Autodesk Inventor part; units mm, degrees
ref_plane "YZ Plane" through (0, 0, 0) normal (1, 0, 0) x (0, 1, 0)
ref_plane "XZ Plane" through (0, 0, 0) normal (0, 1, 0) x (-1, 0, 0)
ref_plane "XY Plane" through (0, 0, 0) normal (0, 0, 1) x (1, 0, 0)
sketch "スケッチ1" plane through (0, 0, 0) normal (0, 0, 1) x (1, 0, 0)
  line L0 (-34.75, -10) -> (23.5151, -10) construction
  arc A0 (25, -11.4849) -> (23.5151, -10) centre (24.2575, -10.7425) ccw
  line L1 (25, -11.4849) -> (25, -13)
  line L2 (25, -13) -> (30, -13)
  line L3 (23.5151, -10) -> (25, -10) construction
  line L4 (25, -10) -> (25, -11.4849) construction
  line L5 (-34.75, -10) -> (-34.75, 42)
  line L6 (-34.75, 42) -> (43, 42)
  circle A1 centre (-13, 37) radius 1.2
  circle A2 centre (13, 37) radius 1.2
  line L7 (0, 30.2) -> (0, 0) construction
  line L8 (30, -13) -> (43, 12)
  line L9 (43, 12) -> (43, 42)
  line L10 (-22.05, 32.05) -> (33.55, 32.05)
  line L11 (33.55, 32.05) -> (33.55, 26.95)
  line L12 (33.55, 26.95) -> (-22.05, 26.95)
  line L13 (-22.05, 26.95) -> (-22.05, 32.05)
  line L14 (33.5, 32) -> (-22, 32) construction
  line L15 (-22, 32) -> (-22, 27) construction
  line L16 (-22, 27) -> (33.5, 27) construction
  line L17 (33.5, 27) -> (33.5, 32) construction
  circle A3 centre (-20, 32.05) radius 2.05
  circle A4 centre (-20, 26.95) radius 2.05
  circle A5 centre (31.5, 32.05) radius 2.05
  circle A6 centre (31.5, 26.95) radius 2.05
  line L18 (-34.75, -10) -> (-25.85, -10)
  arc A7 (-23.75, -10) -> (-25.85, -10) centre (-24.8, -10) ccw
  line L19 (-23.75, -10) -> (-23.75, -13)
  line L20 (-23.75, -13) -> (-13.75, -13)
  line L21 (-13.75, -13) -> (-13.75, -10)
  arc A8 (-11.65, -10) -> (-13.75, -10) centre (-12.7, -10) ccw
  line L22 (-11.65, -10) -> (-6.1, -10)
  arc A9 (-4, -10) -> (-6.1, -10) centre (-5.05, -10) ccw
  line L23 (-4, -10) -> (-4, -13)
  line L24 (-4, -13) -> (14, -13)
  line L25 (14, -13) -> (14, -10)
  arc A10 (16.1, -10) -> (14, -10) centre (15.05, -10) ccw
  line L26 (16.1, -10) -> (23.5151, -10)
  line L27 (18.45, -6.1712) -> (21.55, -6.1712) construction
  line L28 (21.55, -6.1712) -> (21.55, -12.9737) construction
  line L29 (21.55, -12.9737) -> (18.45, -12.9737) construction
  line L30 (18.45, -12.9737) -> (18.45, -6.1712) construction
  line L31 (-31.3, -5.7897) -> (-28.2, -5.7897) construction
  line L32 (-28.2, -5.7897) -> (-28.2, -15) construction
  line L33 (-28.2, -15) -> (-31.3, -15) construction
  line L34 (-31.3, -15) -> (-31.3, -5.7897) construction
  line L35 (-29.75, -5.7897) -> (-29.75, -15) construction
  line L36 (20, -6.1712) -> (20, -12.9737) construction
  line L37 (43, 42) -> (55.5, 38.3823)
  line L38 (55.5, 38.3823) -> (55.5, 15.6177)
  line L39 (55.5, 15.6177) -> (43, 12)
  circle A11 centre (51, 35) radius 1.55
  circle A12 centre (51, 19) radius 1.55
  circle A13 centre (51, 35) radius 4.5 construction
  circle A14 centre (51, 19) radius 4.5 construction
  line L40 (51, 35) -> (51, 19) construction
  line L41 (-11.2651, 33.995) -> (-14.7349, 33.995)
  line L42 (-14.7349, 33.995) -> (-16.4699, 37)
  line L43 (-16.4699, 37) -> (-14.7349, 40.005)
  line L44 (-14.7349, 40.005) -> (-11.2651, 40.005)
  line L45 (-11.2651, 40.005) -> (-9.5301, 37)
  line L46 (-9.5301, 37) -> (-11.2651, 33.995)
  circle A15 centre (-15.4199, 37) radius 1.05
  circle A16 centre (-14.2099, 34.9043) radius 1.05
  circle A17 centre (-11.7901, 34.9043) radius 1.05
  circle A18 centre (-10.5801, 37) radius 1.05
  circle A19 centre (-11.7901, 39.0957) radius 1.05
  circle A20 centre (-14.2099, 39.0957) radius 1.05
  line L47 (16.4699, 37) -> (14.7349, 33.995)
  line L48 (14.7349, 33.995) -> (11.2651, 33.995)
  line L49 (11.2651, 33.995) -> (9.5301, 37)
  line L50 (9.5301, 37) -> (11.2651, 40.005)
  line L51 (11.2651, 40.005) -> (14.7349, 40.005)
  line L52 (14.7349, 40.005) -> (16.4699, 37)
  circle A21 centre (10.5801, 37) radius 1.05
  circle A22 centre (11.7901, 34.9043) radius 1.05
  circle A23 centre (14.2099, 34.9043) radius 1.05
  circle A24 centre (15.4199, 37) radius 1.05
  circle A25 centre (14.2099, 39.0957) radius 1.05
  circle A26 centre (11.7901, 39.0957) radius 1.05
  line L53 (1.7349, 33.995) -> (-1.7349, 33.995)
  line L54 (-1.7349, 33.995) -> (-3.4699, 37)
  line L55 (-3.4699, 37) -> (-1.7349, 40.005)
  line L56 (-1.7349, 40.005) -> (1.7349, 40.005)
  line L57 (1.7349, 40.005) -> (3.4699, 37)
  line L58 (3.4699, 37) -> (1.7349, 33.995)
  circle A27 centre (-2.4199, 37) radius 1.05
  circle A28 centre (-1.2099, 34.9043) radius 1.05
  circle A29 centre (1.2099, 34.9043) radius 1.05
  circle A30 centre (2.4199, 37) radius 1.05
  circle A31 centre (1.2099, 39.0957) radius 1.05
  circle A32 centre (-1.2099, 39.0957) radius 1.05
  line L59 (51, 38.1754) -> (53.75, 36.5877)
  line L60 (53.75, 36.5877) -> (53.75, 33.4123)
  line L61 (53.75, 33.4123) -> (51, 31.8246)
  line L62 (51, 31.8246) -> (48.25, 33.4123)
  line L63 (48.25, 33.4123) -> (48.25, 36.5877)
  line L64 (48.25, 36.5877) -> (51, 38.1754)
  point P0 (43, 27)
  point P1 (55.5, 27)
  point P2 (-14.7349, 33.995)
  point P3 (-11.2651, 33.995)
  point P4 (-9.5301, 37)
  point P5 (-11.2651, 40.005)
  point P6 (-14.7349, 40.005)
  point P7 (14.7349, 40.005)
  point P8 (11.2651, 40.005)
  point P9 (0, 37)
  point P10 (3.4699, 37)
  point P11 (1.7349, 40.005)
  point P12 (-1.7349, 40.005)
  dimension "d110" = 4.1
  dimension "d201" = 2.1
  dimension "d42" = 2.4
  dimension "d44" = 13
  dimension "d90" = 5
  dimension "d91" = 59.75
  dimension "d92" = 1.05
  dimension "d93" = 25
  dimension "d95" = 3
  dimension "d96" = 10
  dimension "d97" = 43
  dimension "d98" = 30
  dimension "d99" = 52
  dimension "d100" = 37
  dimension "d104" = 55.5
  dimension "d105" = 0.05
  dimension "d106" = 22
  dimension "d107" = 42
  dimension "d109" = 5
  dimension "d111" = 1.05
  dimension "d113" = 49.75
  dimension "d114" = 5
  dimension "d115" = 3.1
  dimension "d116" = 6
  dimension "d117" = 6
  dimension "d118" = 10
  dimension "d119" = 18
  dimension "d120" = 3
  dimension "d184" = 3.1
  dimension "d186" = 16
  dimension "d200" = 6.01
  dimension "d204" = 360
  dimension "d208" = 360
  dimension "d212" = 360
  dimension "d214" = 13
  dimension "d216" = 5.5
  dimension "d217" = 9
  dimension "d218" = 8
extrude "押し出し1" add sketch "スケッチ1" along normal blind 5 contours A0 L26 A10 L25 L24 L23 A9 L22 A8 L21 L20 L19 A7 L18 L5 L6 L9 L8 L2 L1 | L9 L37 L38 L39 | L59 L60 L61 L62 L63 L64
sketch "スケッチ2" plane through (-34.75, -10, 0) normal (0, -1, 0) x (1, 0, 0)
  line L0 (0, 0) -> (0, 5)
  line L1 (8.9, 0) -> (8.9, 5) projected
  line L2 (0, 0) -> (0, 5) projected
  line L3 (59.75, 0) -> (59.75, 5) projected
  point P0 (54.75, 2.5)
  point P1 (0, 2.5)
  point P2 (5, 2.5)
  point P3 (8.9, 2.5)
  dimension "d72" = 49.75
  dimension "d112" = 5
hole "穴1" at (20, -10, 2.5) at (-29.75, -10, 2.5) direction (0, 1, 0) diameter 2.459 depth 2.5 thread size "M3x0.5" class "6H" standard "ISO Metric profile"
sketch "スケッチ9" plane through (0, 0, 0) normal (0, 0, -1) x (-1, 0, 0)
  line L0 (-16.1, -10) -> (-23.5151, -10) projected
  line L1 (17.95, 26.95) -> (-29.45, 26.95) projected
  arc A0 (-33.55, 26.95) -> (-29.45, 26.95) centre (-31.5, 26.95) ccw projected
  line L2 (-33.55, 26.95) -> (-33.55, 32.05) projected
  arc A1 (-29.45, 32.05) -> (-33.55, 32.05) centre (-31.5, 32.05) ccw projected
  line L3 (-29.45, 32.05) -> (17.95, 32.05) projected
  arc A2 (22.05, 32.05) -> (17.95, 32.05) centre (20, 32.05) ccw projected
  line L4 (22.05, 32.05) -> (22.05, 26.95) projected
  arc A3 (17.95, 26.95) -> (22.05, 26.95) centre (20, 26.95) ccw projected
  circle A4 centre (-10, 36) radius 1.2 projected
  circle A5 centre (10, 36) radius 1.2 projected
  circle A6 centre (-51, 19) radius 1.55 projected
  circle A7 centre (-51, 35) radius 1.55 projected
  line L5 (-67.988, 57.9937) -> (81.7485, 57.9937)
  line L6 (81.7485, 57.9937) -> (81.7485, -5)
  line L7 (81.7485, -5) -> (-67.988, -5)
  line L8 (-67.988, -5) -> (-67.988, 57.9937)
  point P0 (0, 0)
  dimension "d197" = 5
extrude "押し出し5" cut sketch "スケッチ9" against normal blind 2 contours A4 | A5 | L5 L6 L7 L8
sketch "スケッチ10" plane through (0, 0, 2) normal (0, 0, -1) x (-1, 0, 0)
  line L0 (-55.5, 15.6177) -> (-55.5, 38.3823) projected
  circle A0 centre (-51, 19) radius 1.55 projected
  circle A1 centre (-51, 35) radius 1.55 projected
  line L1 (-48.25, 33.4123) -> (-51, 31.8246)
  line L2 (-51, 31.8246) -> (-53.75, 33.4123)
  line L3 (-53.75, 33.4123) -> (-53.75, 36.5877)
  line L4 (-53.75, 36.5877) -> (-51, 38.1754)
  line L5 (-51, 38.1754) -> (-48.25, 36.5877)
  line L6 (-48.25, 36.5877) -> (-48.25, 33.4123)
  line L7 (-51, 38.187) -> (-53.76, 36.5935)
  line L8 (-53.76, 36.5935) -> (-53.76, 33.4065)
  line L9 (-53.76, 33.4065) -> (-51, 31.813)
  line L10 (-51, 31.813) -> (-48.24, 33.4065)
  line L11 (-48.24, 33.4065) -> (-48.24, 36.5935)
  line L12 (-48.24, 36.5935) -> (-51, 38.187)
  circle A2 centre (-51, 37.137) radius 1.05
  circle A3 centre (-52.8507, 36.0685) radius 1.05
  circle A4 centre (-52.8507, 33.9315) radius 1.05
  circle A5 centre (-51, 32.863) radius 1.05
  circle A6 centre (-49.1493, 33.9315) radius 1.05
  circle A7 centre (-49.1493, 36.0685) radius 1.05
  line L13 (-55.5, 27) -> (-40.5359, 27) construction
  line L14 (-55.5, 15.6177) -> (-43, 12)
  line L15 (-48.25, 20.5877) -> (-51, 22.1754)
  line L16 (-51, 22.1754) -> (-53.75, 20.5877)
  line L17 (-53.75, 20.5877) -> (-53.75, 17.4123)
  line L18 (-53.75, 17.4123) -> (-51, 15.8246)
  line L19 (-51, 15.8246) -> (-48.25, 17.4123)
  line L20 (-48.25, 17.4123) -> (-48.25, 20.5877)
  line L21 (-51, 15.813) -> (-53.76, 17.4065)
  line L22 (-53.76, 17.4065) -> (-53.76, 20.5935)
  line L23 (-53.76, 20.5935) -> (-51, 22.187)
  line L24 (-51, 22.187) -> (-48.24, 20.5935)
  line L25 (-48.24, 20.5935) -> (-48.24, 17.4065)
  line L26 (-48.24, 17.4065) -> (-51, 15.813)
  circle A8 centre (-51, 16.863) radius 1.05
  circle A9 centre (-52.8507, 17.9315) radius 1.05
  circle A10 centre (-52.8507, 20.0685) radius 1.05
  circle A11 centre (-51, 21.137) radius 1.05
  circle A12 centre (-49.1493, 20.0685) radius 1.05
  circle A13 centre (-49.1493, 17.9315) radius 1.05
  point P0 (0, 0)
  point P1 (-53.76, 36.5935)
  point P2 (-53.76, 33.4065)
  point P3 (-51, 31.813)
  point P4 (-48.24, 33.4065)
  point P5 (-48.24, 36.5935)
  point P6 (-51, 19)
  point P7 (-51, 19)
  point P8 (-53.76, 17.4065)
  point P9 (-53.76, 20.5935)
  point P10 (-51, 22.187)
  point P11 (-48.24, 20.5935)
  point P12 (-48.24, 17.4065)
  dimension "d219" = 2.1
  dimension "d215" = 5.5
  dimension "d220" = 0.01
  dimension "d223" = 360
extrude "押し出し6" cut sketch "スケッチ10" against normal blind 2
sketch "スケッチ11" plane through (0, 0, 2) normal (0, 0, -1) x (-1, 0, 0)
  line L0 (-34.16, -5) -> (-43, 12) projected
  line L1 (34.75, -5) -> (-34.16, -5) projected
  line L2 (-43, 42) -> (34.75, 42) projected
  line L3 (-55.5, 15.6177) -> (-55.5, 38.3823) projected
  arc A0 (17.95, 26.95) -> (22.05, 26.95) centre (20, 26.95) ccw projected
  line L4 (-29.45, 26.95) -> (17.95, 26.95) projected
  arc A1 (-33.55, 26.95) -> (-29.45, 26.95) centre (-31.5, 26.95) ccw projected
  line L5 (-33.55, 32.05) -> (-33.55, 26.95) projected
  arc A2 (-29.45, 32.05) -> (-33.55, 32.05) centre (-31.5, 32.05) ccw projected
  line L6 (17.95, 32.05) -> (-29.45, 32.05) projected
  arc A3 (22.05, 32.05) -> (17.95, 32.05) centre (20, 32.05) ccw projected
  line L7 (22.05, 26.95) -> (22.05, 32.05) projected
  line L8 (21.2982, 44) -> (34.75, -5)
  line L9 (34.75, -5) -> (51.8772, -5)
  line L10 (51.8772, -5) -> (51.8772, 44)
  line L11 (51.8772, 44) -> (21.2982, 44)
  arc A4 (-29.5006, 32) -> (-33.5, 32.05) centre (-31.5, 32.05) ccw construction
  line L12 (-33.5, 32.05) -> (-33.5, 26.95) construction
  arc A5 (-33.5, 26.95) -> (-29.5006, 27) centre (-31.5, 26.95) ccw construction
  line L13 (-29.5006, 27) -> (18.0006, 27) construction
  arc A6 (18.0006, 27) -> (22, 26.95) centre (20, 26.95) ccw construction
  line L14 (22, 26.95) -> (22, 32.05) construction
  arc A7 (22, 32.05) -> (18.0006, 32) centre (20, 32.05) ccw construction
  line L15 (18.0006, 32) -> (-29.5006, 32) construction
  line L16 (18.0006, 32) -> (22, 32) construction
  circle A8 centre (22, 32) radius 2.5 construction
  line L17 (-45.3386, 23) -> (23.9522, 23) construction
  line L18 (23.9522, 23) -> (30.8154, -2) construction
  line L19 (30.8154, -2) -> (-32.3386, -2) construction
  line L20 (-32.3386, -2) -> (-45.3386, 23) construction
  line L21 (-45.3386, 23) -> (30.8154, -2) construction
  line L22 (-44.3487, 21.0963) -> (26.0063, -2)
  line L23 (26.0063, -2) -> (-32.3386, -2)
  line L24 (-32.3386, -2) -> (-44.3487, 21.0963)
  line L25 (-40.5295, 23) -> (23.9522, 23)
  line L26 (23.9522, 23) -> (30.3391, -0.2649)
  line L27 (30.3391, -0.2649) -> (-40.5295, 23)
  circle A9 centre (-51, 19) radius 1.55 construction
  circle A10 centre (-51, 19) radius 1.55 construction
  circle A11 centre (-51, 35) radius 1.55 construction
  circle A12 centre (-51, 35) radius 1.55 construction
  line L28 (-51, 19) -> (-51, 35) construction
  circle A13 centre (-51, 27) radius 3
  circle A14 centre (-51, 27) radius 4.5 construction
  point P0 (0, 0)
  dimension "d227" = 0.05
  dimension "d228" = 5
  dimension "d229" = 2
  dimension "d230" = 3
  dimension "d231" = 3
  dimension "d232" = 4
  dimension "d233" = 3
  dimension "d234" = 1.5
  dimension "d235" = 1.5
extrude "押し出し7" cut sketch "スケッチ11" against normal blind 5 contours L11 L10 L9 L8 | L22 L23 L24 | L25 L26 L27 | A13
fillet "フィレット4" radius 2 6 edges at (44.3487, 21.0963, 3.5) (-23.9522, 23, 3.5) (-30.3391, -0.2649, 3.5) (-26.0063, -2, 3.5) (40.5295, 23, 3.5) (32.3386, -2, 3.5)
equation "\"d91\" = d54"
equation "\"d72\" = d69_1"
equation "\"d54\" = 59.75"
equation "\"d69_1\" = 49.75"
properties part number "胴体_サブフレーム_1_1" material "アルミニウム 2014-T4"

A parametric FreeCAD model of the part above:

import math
import FreeCAD as App
import Part
import Sketcher
Q = App.Units.Quantity


def edges_at(feature, points):
    """Names of the edges that pass closest to the given points."""
    edges = feature.Shape.Edges
    near = lambda p: min(range(len(edges)), key=lambda i: edges[i].distToShape(Part.Vertex(*p))[0])
    return sorted({f"Edge{near(p) + 1}" for p in points})

doc = App.newDocument("Part")
body = doc.addObject("PartDesign::Body", "Body")

# Sketch on XY plane
sketch1 = doc.addObject("Sketcher::SketchObject", "Sketch")
body.addObject(sketch1)
sketch1.AttachmentSupport = (doc.XY_Plane, [""])
sketch1.MapMode = "FlatFace"
sketch1.addGeometry([
    Part.ArcOfCircle(Part.Circle(App.Vector(24.3, -10.7, 0), App.Vector(0, 0, 1), 1), math.radians(-45), math.radians(135)),  # 0
    Part.LineSegment(App.Vector(25, -11.5, 0), App.Vector(25, -13, 0)),  # 1
    Part.LineSegment(App.Vector(25, -13, 0), App.Vector(30, -13, 0)),  # 2
    Part.LineSegment(App.Vector(30, -13, 0), App.Vector(43, 12, 0)),  # 3
    Part.LineSegment(App.Vector(43, 12, 0), App.Vector(55.5, 15.6, 0)),  # 4
    Part.LineSegment(App.Vector(55.5, 15.6, 0), App.Vector(55.5, 38.4, 0)),  # 5
    Part.LineSegment(App.Vector(55.5, 38.4, 0), App.Vector(43, 42, 0)),  # 6
    Part.LineSegment(App.Vector(43, 42, 0), App.Vector(-34.8, 42, 0)),  # 7
    Part.LineSegment(App.Vector(-34.8, 42, 0), App.Vector(-34.8, -10, 0)),  # 8
    Part.LineSegment(App.Vector(-34.8, -10, 0), App.Vector(-25.9, -10, 0)),  # 9
    Part.ArcOfCircle(Part.Circle(App.Vector(-24.8, -10, 0), App.Vector(0, 0, 1), 1.1), math.radians(0), math.radians(180)),  # 10
    Part.LineSegment(App.Vector(-23.8, -10, 0), App.Vector(-23.8, -13, 0)),  # 11
    Part.LineSegment(App.Vector(-23.8, -13, 0), App.Vector(-13.8, -13, 0)),  # 12
    Part.LineSegment(App.Vector(-13.8, -13, 0), App.Vector(-13.8, -10, 0)),  # 13
    Part.ArcOfCircle(Part.Circle(App.Vector(-12.7, -10, 0), App.Vector(0, 0, 1), 1), math.radians(0), math.radians(180)),  # 14
    Part.LineSegment(App.Vector(-11.7, -10, 0), App.Vector(-6.1, -10, 0)),  # 15
    Part.ArcOfCircle(Part.Circle(App.Vector(-5, -10, 0), App.Vector(0, 0, 1), 1), math.radians(0), math.radians(180)),  # 16
    Part.LineSegment(App.Vector(-4, -10, 0), App.Vector(-4, -13, 0)),  # 17
    Part.LineSegment(App.Vector(-4, -13, 0), App.Vector(14, -13, 0)),  # 18
    Part.LineSegment(App.Vector(14, -13, 0), App.Vector(14, -10, 0)),  # 19
    Part.ArcOfCircle(Part.Circle(App.Vector(15.1, -10, 0), App.Vector(0, 0, 1), 1.1), math.radians(0), math.radians(180)),  # 20
    Part.LineSegment(App.Vector(16.1, -10, 0), App.Vector(23.5, -10, 0)),  # 21
    Part.ArcOfCircle(Part.Circle(App.Vector(-11.8, 34.9, 0), App.Vector(0, 0, 1), 1.1), math.radians(-120), math.radians(0)),  # 22
    Part.LineSegment(App.Vector(-12.3, 34, 0), App.Vector(-13.7, 34, 0)),  # 23
    Part.ArcOfCircle(Part.Circle(App.Vector(-14.2, 34.9, 0), App.Vector(0, 0, 1), 1.1), math.radians(-180), math.radians(-60)),  # 24
    Part.LineSegment(App.Vector(-15.3, 34.9, 0), App.Vector(-15.9, 36.1, 0)),  # 25
    Part.ArcOfCircle(Part.Circle(App.Vector(-15.4, 37, 0), App.Vector(0, 0, 1), 1.1), math.radians(120), math.radians(240)),  # 26
    Part.LineSegment(App.Vector(-15.9, 37.9, 0), App.Vector(-15.3, 39.1, 0)),  # 27
    Part.ArcOfCircle(Part.Circle(App.Vector(-14.2, 39.1, 0), App.Vector(0, 0, 1), 1.1), math.radians(60), math.radians(180)),  # 28
    Part.LineSegment(App.Vector(-13.7, 40, 0), App.Vector(-12.3, 40, 0)),  # 29
    Part.ArcOfCircle(Part.Circle(App.Vector(-11.8, 39.1, 0), App.Vector(0, 0, 1), 1.1), math.radians(0), math.radians(120)),  # 30
    Part.LineSegment(App.Vector(-10.7, 39.1, 0), App.Vector(-10.1, 37.9, 0)),  # 31
    Part.ArcOfCircle(Part.Circle(App.Vector(-10.6, 37, 0), App.Vector(0, 0, 1), 1.1), math.radians(-60), math.radians(60)),  # 32
    Part.LineSegment(App.Vector(-10.1, 36.1, 0), App.Vector(-10.7, 34.9, 0)),  # 33
    Part.LineSegment(App.Vector(-22.1, 26.9, 0), App.Vector(-22.1, 32, 0)),  # 34
    Part.ArcOfCircle(Part.Circle(App.Vector(-20, 32, 0), App.Vector(0, 0, 1), 2), math.radians(0), math.radians(180)),  # 35
    Part.LineSegment(App.Vector(-17.9, 32, 0), App.Vector(29.4, 32, 0)),  # 36
    Part.ArcOfCircle(Part.Circle(App.Vector(31.5, 32, 0), App.Vector(0, 0, 1), 2), math.radians(0), math.radians(180)),  # 37
    Part.LineSegment(App.Vector(33.5, 32, 0), App.Vector(33.5, 26.9, 0)),  # 38
    Part.ArcOfCircle(Part.Circle(App.Vector(31.5, 26.9, 0), App.Vector(0, 0, 1), 2), math.radians(180), math.radians(360)),  # 39
    Part.LineSegment(App.Vector(29.4, 26.9, 0), App.Vector(-17.9, 26.9, 0)),  # 40
    Part.ArcOfCircle(Part.Circle(App.Vector(-20, 26.9, 0), App.Vector(0, 0, 1), 2), math.radians(180), math.radians(360)),  # 41
    Part.ArcOfCircle(Part.Circle(App.Vector(1.2, 34.9, 0), App.Vector(0, 0, 1), 1.1), math.radians(-120), math.radians(0)),  # 42
    Part.LineSegment(App.Vector(0.7, 34, 0), App.Vector(-0.7, 34, 0)),  # 43
    Part.ArcOfCircle(Part.Circle(App.Vector(-1.2, 34.9, 0), App.Vector(0, 0, 1), 1.1), math.radians(-180), math.radians(-60)),  # 44
    Part.LineSegment(App.Vector(-2.3, 34.9, 0), App.Vector(-2.9, 36.1, 0)),  # 45
    Part.ArcOfCircle(Part.Circle(App.Vector(-2.4, 37, 0), App.Vector(0, 0, 1), 1.1), math.radians(120), math.radians(240)),  # 46
    Part.LineSegment(App.Vector(-2.9, 37.9, 0), App.Vector(-2.3, 39.1, 0)),  # 47
    Part.ArcOfCircle(Part.Circle(App.Vector(-1.2, 39.1, 0), App.Vector(0, 0, 1), 1.1), math.radians(60), math.radians(180)),  # 48
    Part.LineSegment(App.Vector(-0.7, 40, 0), App.Vector(0.7, 40, 0)),  # 49
    Part.ArcOfCircle(Part.Circle(App.Vector(1.2, 39.1, 0), App.Vector(0, 0, 1), 1.1), math.radians(0), math.radians(120)),  # 50
    Part.LineSegment(App.Vector(2.3, 39.1, 0), App.Vector(2.9, 37.9, 0)),  # 51
    Part.ArcOfCircle(Part.Circle(App.Vector(2.4, 37, 0), App.Vector(0, 0, 1), 1.1), math.radians(-60), math.radians(60)),  # 52
    Part.LineSegment(App.Vector(2.9, 36.1, 0), App.Vector(2.3, 34.9, 0)),  # 53
    Part.LineSegment(App.Vector(15.9, 36.1, 0), App.Vector(15.3, 34.9, 0)),  # 54
    Part.ArcOfCircle(Part.Circle(App.Vector(14.2, 34.9, 0), App.Vector(0, 0, 1), 1.1), math.radians(-120), math.radians(0)),  # 55
    Part.LineSegment(App.Vector(13.7, 34, 0), App.Vector(12.3, 34, 0)),  # 56
    Part.ArcOfCircle(Part.Circle(App.Vector(11.8, 34.9, 0), App.Vector(0, 0, 1), 1.1), math.radians(-180), math.radians(-60)),  # 57
    Part.LineSegment(App.Vector(10.7, 34.9, 0), App.Vector(10.1, 36.1, 0)),  # 58
    Part.ArcOfCircle(Part.Circle(App.Vector(10.6, 37, 0), App.Vector(0, 0, 1), 1.1), math.radians(120), math.radians(240)),  # 59
    Part.LineSegment(App.Vector(10.1, 37.9, 0), App.Vector(10.7, 39.1, 0)),  # 60
    Part.ArcOfCircle(Part.Circle(App.Vector(11.8, 39.1, 0), App.Vector(0, 0, 1), 1.1), math.radians(60), math.radians(180)),  # 61
    Part.LineSegment(App.Vector(12.3, 40, 0), App.Vector(13.7, 40, 0)),  # 62
    Part.ArcOfCircle(Part.Circle(App.Vector(14.2, 39.1, 0), App.Vector(0, 0, 1), 1.1), math.radians(0), math.radians(120)),  # 63
    Part.LineSegment(App.Vector(15.3, 39.1, 0), App.Vector(15.9, 37.9, 0)),  # 64
    Part.ArcOfCircle(Part.Circle(App.Vector(15.4, 37, 0), App.Vector(0, 0, 1), 1.1), math.radians(-60), math.radians(60)),  # 65
    Part.Circle(App.Vector(51, 19, 0), App.Vector(0, 0, 1), 1.6),  # 66
    Part.Circle(App.Vector(51, 35, 0), App.Vector(0, 0, 1), 1.6),  # 67
], False)
sketch1.addConstraint([
    Sketcher.Constraint("Coincident", 0, 1, 1, 1),
    Sketcher.Constraint("Coincident", 1, 2, 2, 1),
    Sketcher.Constraint("Coincident", 2, 2, 3, 1),
    Sketcher.Constraint("Coincident", 3, 2, 4, 1),
    Sketcher.Constraint("Coincident", 4, 2, 5, 1),
    Sketcher.Constraint("Coincident", 5, 2, 6, 1),
    Sketcher.Constraint("Coincident", 6, 2, 7, 1),
    Sketcher.Constraint("Coincident", 7, 2, 8, 1),
    Sketcher.Constraint("Coincident", 8, 2, 9, 1),
    Sketcher.Constraint("Coincident", 9, 2, 10, 2),
    Sketcher.Constraint("Tangent", 10, 1, 11, 1),
    Sketcher.Constraint("Coincident", 11, 2, 12, 1),
    Sketcher.Constraint("Coincident", 12, 2, 13, 1),
    Sketcher.Constraint("Tangent", 13, 2, 14, 2),
    Sketcher.Constraint("Coincident", 14, 1, 15, 1),
    Sketcher.Constraint("Coincident", 15, 2, 16, 2),
    Sketcher.Constraint("Tangent", 16, 1, 17, 1),
    Sketcher.Constraint("Coincident", 17, 2, 18, 1),
    Sketcher.Constraint("Coincident", 18, 2, 19, 1),
    Sketcher.Constraint("Tangent", 19, 2, 20, 2),
    Sketcher.Constraint("Coincident", 20, 1, 21, 1),
    Sketcher.Constraint("Coincident", 21, 2, 0, 2),
    Sketcher.Constraint("Coincident", 22, 1, 23, 1),
    Sketcher.Constraint("Coincident", 23, 2, 24, 2),
    Sketcher.Constraint("Coincident", 24, 1, 25, 1),
    Sketcher.Constraint("Coincident", 25, 2, 26, 2),
    Sketcher.Constraint("Coincident", 26, 1, 27, 1),
    Sketcher.Constraint("Coincident", 27, 2, 28, 2),
    Sketcher.Constraint("Coincident", 28, 1, 29, 1),
    Sketcher.Constraint("Coincident", 29, 2, 30, 2),
    Sketcher.Constraint("Coincident", 30, 1, 31, 1),
    Sketcher.Constraint("Coincident", 31, 2, 32, 2),
    Sketcher.Constraint("Coincident", 32, 1, 33, 1),
    Sketcher.Constraint("Coincident", 33, 2, 22, 2),
    Sketcher.Constraint("Tangent", 34, 2, 35, 2),
    Sketcher.Constraint("Coincident", 35, 1, 36, 1),
    Sketcher.Constraint("Coincident", 36, 2, 37, 2),
    Sketcher.Constraint("Tangent", 37, 1, 38, 1),
    Sketcher.Constraint("Tangent", 38, 2, 39, 2),
    Sketcher.Constraint("Coincident", 39, 1, 40, 1),
    Sketcher.Constraint("Coincident", 40, 2, 41, 2),
    Sketcher.Constraint("Tangent", 41, 1, 34, 1),
    Sketcher.Constraint("Coincident", 42, 1, 43, 1),
    Sketcher.Constraint("Coincident", 43, 2, 44, 2),
    Sketcher.Constraint("Coincident", 44, 1, 45, 1),
    Sketcher.Constraint("Coincident", 45, 2, 46, 2),
    Sketcher.Constraint("Coincident", 46, 1, 47, 1),
    Sketcher.Constraint("Coincident", 47, 2, 48, 2),
    Sketcher.Constraint("Coincident", 48, 1, 49, 1),
    Sketcher.Constraint("Coincident", 49, 2, 50, 2),
    Sketcher.Constraint("Coincident", 50, 1, 51, 1),
    Sketcher.Constraint("Coincident", 51, 2, 52, 2),
    Sketcher.Constraint("Coincident", 52, 1, 53, 1),
    Sketcher.Constraint("Coincident", 53, 2, 42, 2),
    Sketcher.Constraint("Coincident", 54, 2, 55, 2),
    Sketcher.Constraint("Coincident", 55, 1, 56, 1),
    Sketcher.Constraint("Coincident", 56, 2, 57, 2),
    Sketcher.Constraint("Coincident", 57, 1, 58, 1),
    Sketcher.Constraint("Coincident", 58, 2, 59, 2),
    Sketcher.Constraint("Coincident", 59, 1, 60, 1),
    Sketcher.Constraint("Coincident", 60, 2, 61, 2),
    Sketcher.Constraint("Coincident", 61, 1, 62, 1),
    Sketcher.Constraint("Coincident", 62, 2, 63, 2),
    Sketcher.Constraint("Coincident", 63, 1, 64, 1),
    Sketcher.Constraint("Coincident", 64, 2, 65, 2),
    Sketcher.Constraint("Coincident", 65, 1, 54, 1),
    Sketcher.Constraint("Vertical", 1),
    Sketcher.Constraint("Horizontal", 2),
    Sketcher.Constraint("Vertical", 5),
    Sketcher.Constraint("Horizontal", 7),
    Sketcher.Constraint("Vertical", 8),
    Sketcher.Constraint("Horizontal", 9),
    Sketcher.Constraint("Vertical", 11),
    Sketcher.Constraint("Horizontal", 12),
    Sketcher.Constraint("Vertical", 13),
    Sketcher.Constraint("Horizontal", 15),
    Sketcher.Constraint("Vertical", 17),
    Sketcher.Constraint("Horizontal", 18),
    Sketcher.Constraint("Vertical", 19),
    Sketcher.Constraint("Horizontal", 21),
    Sketcher.Constraint("Horizontal", 23),
    Sketcher.Constraint("Horizontal", 29),
    Sketcher.Constraint("Vertical", 34),
    Sketcher.Constraint("Horizontal", 36),
    Sketcher.Constraint("Vertical", 38),
    Sketcher.Constraint("Horizontal", 40),
    Sketcher.Constraint("Horizontal", 43),
    Sketcher.Constraint("Horizontal", 49),
    Sketcher.Constraint("Horizontal", 56),
    Sketcher.Constraint("Horizontal", 62),
    Sketcher.Constraint("Equal", 0, 10),
    Sketcher.Constraint("Equal", 10, 14),
    Sketcher.Constraint("Equal", 14, 16),
    Sketcher.Constraint("Equal", 16, 20),
    Sketcher.Constraint("Equal", 20, 22),
    Sketcher.Constraint("Equal", 22, 24),
    Sketcher.Constraint("Equal", 24, 26),
    Sketcher.Constraint("Equal", 26, 28),
    Sketcher.Constraint("Equal", 28, 30),
    Sketcher.Constraint("Equal", 30, 32),
    Sketcher.Constraint("Equal", 35, 37),
    Sketcher.Constraint("Equal", 37, 39),
    Sketcher.Constraint("Equal", 39, 41),
    Sketcher.Constraint("Equal", 32, 42),
    Sketcher.Constraint("Equal", 42, 44),
    Sketcher.Constraint("Equal", 44, 46),
    Sketcher.Constraint("Equal", 46, 48),
    Sketcher.Constraint("Equal", 48, 50),
    Sketcher.Constraint("Equal", 50, 52),
    Sketcher.Constraint("Equal", 52, 55),
    Sketcher.Constraint("Equal", 55, 57),
    Sketcher.Constraint("Equal", 57, 59),
    Sketcher.Constraint("Equal", 59, 61),
    Sketcher.Constraint("Equal", 61, 63),
    Sketcher.Constraint("Equal", 63, 65),
    Sketcher.Constraint("Equal", 66, 67),
    Sketcher.Constraint("Symmetric", 42, 3, 44, 3, -2),
    Sketcher.Constraint("Symmetric", 48, 3, 50, 3, -2),
    Sketcher.Constraint("Symmetric", 46, 3, 52, 3, -2),
    Sketcher.Constraint("Symmetric", 24, 3, 55, 3, -2),
    Sketcher.Constraint("Symmetric", 22, 3, 57, 3, -2),
    Sketcher.Constraint("Symmetric", 32, 3, 59, 3, -2),
    Sketcher.Constraint("Symmetric", 30, 3, 61, 3, -2),
    Sketcher.Constraint("Symmetric", 28, 3, 63, 3, -2),
    Sketcher.Constraint("Symmetric", 26, 3, 65, 3, -2),
    Sketcher.Constraint("Parallel", 25, 31),
    Sketcher.Constraint("Parallel", 27, 33),
    Sketcher.Constraint("Parallel", 31, 45),
    Sketcher.Constraint("Parallel", 33, 47),
    Sketcher.Constraint("Parallel", 45, 51),
    Sketcher.Constraint("Parallel", 47, 53),
    Sketcher.Constraint("Parallel", 53, 54),
    Sketcher.Constraint("Parallel", 51, 58),
    Sketcher.Constraint("Parallel", 54, 60),
    Sketcher.Constraint("Parallel", 58, 64),
    Sketcher.Constraint("Horizontal", 10, 3, 14, 3),
    Sketcher.Constraint("Horizontal", 14, 3, 16, 3),
    Sketcher.Constraint("Horizontal", 16, 3, 20, 3),
    Sketcher.Constraint("Horizontal", 22, 3, 24, 3),
    Sketcher.Constraint("Horizontal", 28, 3, 30, 3),
    Sketcher.Constraint("Horizontal", 26, 3, 32, 3),
    Sketcher.Constraint("Horizontal", 35, 3, 37, 3),
    Sketcher.Constraint("Horizontal", 39, 3, 41, 3),
    Sketcher.Constraint("Horizontal", 24, 3, 42, 3),
    Sketcher.Constraint("Horizontal", 32, 3, 46, 3),
    Sketcher.Constraint("Horizontal", 30, 3, 48, 3),
    Sketcher.Constraint("Horizontal", 20, 3, 8, 2),
    Sketcher.Constraint("Horizontal", 2, 2, 11, 2),
    Sketcher.Constraint("Horizontal", 13, 2, 14, 1),
    Sketcher.Constraint("Horizontal", 12, 2, 17, 2),
    Sketcher.Constraint("Horizontal", 19, 2, 20, 1),
    Sketcher.Constraint("Horizontal", 57, 3, 24, 1),
    Sketcher.Constraint("Horizontal", 63, 3, 27, 2),
    Sketcher.Constraint("Horizontal", 27, 2, 30, 1),
    Sketcher.Constraint("Horizontal", 26, 1, 31, 2),
    Sketcher.Constraint("Horizontal", 25, 2, 32, 1),
    Sketcher.Constraint("Horizontal", 24, 1, 33, 2),
    Sketcher.Constraint("Horizontal", 34, 2, 35, 1),
    Sketcher.Constraint("Horizontal", 38, 2, 39, 1),
    Sketcher.Constraint("Horizontal", 23, 2, 42, 1),
    Sketcher.Constraint("Horizontal", 33, 2, 44, 1),
    Sketcher.Constraint("Horizontal", 32, 1, 45, 2),
    Sketcher.Constraint("Horizontal", 31, 2, 46, 1),
    Sketcher.Constraint("Horizontal", 30, 1, 47, 2),
    Sketcher.Constraint("Horizontal", 29, 2, 48, 1),
    Sketcher.Constraint("Horizontal", 47, 2, 50, 1),
    Sketcher.Constraint("Horizontal", 46, 1, 51, 2),
    Sketcher.Constraint("Horizontal", 45, 2, 52, 1),
    Sketcher.Constraint("Horizontal", 53, 2, 54, 2),
    Sketcher.Constraint("Horizontal", 43, 2, 55, 1),
    Sketcher.Constraint("Horizontal", 54, 2, 57, 1),
    Sketcher.Constraint("Horizontal", 51, 2, 59, 1),
    Sketcher.Constraint("Horizontal", 49, 2, 61, 1),
    Sketcher.Constraint("Horizontal", 60, 2, 63, 1),
    Sketcher.Constraint("Vertical", 24, 3, 28, 3),
    Sketcher.Constraint("Vertical", 66, 3, 67, 3),
    Sketcher.Constraint("Vertical", 3, 2, 6, 2),
    Sketcher.Constraint("Vertical", 25, 2, 26, 1),
    Sketcher.Constraint("Vertical", 23, 2, 28, 1),
    Sketcher.Constraint("Equal", 29, 43),
    Sketcher.Constraint("Equal", 4, 6),
    Sketcher.Constraint("Diameter", 66, 3.1),
    Sketcher.Constraint("DistanceX", 2, 1, 2, 2, 5.0),
    Sketcher.Constraint("DistanceX", 12, 1, 12, 2, 10.0),
    Sketcher.Constraint("DistanceX", 18, 1, 18, 2, 18.0),
    Sketcher.Constraint("DistanceY", 8, 2, 8, 1, 52.0),
    Sketcher.Constraint("DistanceY", 11, 2, 11, 1, 3.0),
    Sketcher.Constraint("Radius", 0, 1.05),
    Sketcher.Constraint("Radius", 35, 2.05),
    Sketcher.Constraint("DistanceY", 10, 3, -1, 1, 10.0),
    Sketcher.Constraint("DistanceY", -1, 1, 26, 3, 37.0),
    Sketcher.Constraint("DistanceX", -1, 1, 0, 1, 25.0),
    Sketcher.Constraint("DistanceX", -1, 1, 3, 2, 43.0),
    Sketcher.Constraint("DistanceX", -1, 1, 4, 2, 55.5),
    Sketcher.Constraint("Angle", 25, Q("120.001 deg")),
    Sketcher.Constraint("DistanceX", 9, 1, 9, 2, 8.9),
    Sketcher.Constraint("DistanceX", 36, 1, 36, 2, 47.4),
    Sketcher.Constraint("DistanceY", 34, 1, 34, 2, 5.1),
    Sketcher.Constraint("DistanceX", 35, 3, -1, 1, 20.0),
    Sketcher.Constraint("DistanceX", -1, 1, 66, 3, 51.0),
    Sketcher.Constraint("DistanceY", -1, 1, 66, 3, 19.0),
    Sketcher.Constraint("DistanceY", -1, 1, 67, 3, 35.0),
    Sketcher.Constraint("DistanceY", -1, 1, 3, 2, 12.0),
    Sketcher.Constraint("DistanceX", 16, 1, -1, 1, 4.0),
    Sketcher.Constraint("DistanceX", 7, 2, 7, 1, 77.75),
    Sketcher.Constraint("Distance", 25, 1.37),
    Sketcher.Constraint("DistanceX", 21, 1, 21, 2, 7.415),
    Sketcher.Constraint("DistanceX", 22, 3, -1, 1, 11.79),
    Sketcher.Constraint("DistanceX", 24, 3, -1, 1, 14.21),
    Sketcher.Constraint("DistanceX", 26, 3, -1, 1, 15.42),
    Sketcher.Constraint("DistanceY", -1, 1, 35, 3, 32.05),
    Sketcher.Constraint("Distance", 4, 13.013),
    Sketcher.Constraint("DistanceX", 23, 2, 23, 1, 1.3697),
    Sketcher.Constraint("DistanceX", -1, 1, 0, 3, 24.2575),
])
pad1 = doc.addObject("PartDesign::Pad", "Pad")
body.addObject(pad1)
pad1.Profile = sketch1
pad1.Length = 5

# Sketch on XZ plane
sketch2 = doc.addObject("Sketcher::SketchObject", "Sketch001")
body.addObject(sketch2)
sketch2.AttachmentSupport = (doc.XZ_Plane, [""])
sketch2.MapMode = "FlatFace"
sketch2.AttachmentOffset = App.Placement(App.Vector(0, 0, 10), App.Rotation())
sketch2.addGeometry([
    Part.Circle(App.Vector(20, 2.5, 0), App.Vector(0, 0, 1), 1.2),
    Part.Circle(App.Vector(-29.8, 2.5, 0), App.Vector(0, 0, 1), 1.2),
], False)
sketch2.addConstraint([
    Sketcher.Constraint("Equal", 0, 1),
    Sketcher.Constraint("Horizontal", 0, 3, 1, 3),
    Sketcher.Constraint("Diameter", 0, 2.459),
    Sketcher.Constraint("DistanceX", -1, 1, 0, 3, 20.0),
    Sketcher.Constraint("DistanceY", -1, 1, 0, 3, 2.5),
    Sketcher.Constraint("DistanceX", 1, 3, -1, 1, 29.75),
])
doc.recompute()
hole = doc.addObject("PartDesign::Hole", "Hole")
body.addObject(hole)
hole.Profile = sketch2
hole.ThreadType = "None"
hole.Diameter = 2.459
hole.DepthType = "Dimension"
hole.Depth = 2.5
hole.DrillPoint = "Flat"

# Sketch on XY plane
sketch3 = doc.addObject("Sketcher::SketchObject", "Sketch002")
body.addObject(sketch3)
sketch3.AttachmentSupport = (doc.XY_Plane, [""])
sketch3.MapMode = "FlatFace"
sketch3.addGeometry([
    Part.LineSegment(App.Vector(-81.7, 58, 0), App.Vector(68, 58, 0)),  # 0
    Part.LineSegment(App.Vector(68, 58, 0), App.Vector(68, -5, 0)),  # 1
    Part.LineSegment(App.Vector(68, -5, 0), App.Vector(-81.7, -5, 0)),  # 2
    Part.LineSegment(App.Vector(-81.7, -5, 0), App.Vector(-81.7, 58, 0)),  # 3
    Part.Circle(App.Vector(51, 19, 0), App.Vector(0, 0, 1), 1.6),  # 4
    Part.Circle(App.Vector(51, 35, 0), App.Vector(0, 0, 1), 1.6),  # 5
    Part.ArcOfCircle(Part.Circle(App.Vector(-20, 26.9, 0), App.Vector(0, 0, 1), 2.1), math.radians(180), math.radians(360)),  # 6
    Part.LineSegment(App.Vector(-17.9, 26.9, 0), App.Vector(29.4, 26.9, 0)),  # 7
    Part.ArcOfCircle(Part.Circle(App.Vector(31.5, 26.9, 0), App.Vector(0, 0, 1), 2), math.radians(180), math.radians(360)),  # 8
    Part.LineSegment(App.Vector(33.5, 26.9, 0), App.Vector(33.5, 32, 0)),  # 9
    Part.ArcOfCircle(Part.Circle(App.Vector(31.5, 32, 0), App.Vector(0, 0, 1), 2.1), math.radians(0), math.radians(180)),  # 10
    Part.LineSegment(App.Vector(29.4, 32, 0), App.Vector(-17.9, 32, 0)),  # 11
    Part.ArcOfCircle(Part.Circle(App.Vector(-20, 32, 0), App.Vector(0, 0, 1), 2.1), math.radians(0), math.radians(180)),  # 12
    Part.LineSegment(App.Vector(-22.1, 32, 0), App.Vector(-22.1, 26.9, 0)),  # 13
], False)
sketch3.addConstraint([
    Sketcher.Constraint("Coincident", 0, 2, 1, 1),
    Sketcher.Constraint("Coincident", 1, 2, 2, 1),
    Sketcher.Constraint("Coincident", 2, 2, 3, 1),
    Sketcher.Constraint("Coincident", 3, 2, 0, 1),
    Sketcher.Constraint("Coincident", 6, 2, 7, 1),
    Sketcher.Constraint("Coincident", 7, 2, 8, 1),
    Sketcher.Constraint("Tangent", 8, 2, 9, 1),
    Sketcher.Constraint("Tangent", 9, 2, 10, 1),
    Sketcher.Constraint("Coincident", 10, 2, 11, 1),
    Sketcher.Constraint("Coincident", 11, 2, 12, 1),
    Sketcher.Constraint("Tangent", 12, 2, 13, 1),
    Sketcher.Constraint("Tangent", 13, 2, 6, 1),
    Sketcher.Constraint("Horizontal", 0),
    Sketcher.Constraint("Vertical", 1),
    Sketcher.Constraint("Horizontal", 2),
    Sketcher.Constraint("Vertical", 3),
    Sketcher.Constraint("Horizontal", 7),
    Sketcher.Constraint("Vertical", 9),
    Sketcher.Constraint("Horizontal", 11),
    Sketcher.Constraint("Vertical", 13),
    Sketcher.Constraint("Equal", 4, 5),
    Sketcher.Constraint("Equal", 6, 8),
    Sketcher.Constraint("Equal", 8, 10),
    Sketcher.Constraint("Equal", 10, 12),
    Sketcher.Constraint("Horizontal", 6, 3, 8, 3),
    Sketcher.Constraint("Horizontal", 10, 3, 12, 3),
    Sketcher.Constraint("Horizontal", 8, 3, 6, 2),
    Sketcher.Constraint("Horizontal", 9, 2, 10, 2),
    Sketcher.Constraint("Vertical", 4, 3, 5, 3),
    Sketcher.Constraint("DistanceY", 1, 2, -1, 1, 5.0),
    Sketcher.Constraint("Diameter", 4, 3.1),
    Sketcher.Constraint("Radius", 6, 2.05),
    Sketcher.Constraint("DistanceX", 7, 1, 7, 2, 47.4),
    Sketcher.Constraint("DistanceY", 9, 1, 9, 2, 5.1),
    Sketcher.Constraint("DistanceX", -1, 1, 4, 3, 51.0),
    Sketcher.Constraint("DistanceY", -1, 1, 4, 3, 19.0),
    Sketcher.Constraint("DistanceY", -1, 1, 5, 3, 35.0),
    Sketcher.Constraint("DistanceX", 6, 3, -1, 1, 20.0),
    Sketcher.Constraint("DistanceY", -1, 1, 6, 3, 26.95),
    Sketcher.Constraint("DistanceX", 0, 1, 0, 2, 149.7365),
    Sketcher.Constraint("DistanceY", 1, 2, 1, 1, 62.9937),
    Sketcher.Constraint("DistanceX", -1, 1, 0, 2, 67.988),
])
pocket1 = doc.addObject("PartDesign::Pocket", "Pocket")
body.addObject(pocket1)
pocket1.Profile = sketch3
pocket1.Length = 2
pocket1.Reversed = True

# Sketch on XY plane
sketch4 = doc.addObject("Sketcher::SketchObject", "Sketch003")
body.addObject(sketch4)
sketch4.AttachmentSupport = (doc.XY_Plane, [""])
sketch4.MapMode = "FlatFace"
sketch4.AttachmentOffset = App.Placement(App.Vector(0, 0, 2), App.Rotation())
sketch4.addGeometry([
    Part.LineSegment(App.Vector(48.2, 18.5, 0), App.Vector(48.2, 19.5, 0)),  # 0
    Part.ArcOfCircle(Part.Circle(App.Vector(49.1, 20.1, 0), App.Vector(0, 0, 1), 1.1), math.radians(90), math.radians(210)),  # 1
    Part.LineSegment(App.Vector(49.1, 21.1, 0), App.Vector(50.1, 21.7, 0)),  # 2
    Part.ArcOfCircle(Part.Circle(App.Vector(51, 21.1, 0), App.Vector(0, 0, 1), 1.1), math.radians(30), math.radians(150)),  # 3
    Part.LineSegment(App.Vector(51.9, 21.7, 0), App.Vector(52.9, 21.1, 0)),  # 4
    Part.ArcOfCircle(Part.Circle(App.Vector(52.9, 20.1, 0), App.Vector(0, 0, 1), 1.1), math.radians(-30), math.radians(90)),  # 5
    Part.LineSegment(App.Vector(53.8, 19.5, 0), App.Vector(53.8, 18.5, 0)),  # 6
    Part.ArcOfCircle(Part.Circle(App.Vector(52.9, 17.9, 0), App.Vector(0, 0, 1), 1.1), math.radians(-90), math.radians(30)),  # 7
    Part.LineSegment(App.Vector(52.9, 16.9, 0), App.Vector(51.9, 16.3, 0)),  # 8
    Part.ArcOfCircle(Part.Circle(App.Vector(51, 16.9, 0), App.Vector(0, 0, 1), 1.1), math.radians(-150), math.radians(-30)),  # 9
    Part.LineSegment(App.Vector(50.1, 16.3, 0), App.Vector(49.1, 16.9, 0)),  # 10
    Part.ArcOfCircle(Part.Circle(App.Vector(49.1, 17.9, 0), App.Vector(0, 0, 1), 1.1), math.radians(150), math.radians(270)),  # 11
    Part.LineSegment(App.Vector(48.2, 34.5, 0), App.Vector(48.2, 35.5, 0)),  # 12
    Part.ArcOfCircle(Part.Circle(App.Vector(49.1, 36.1, 0), App.Vector(0, 0, 1), 1.1), math.radians(90), math.radians(210)),  # 13
    Part.LineSegment(App.Vector(49.1, 37.1, 0), App.Vector(50.1, 37.7, 0)),  # 14
    Part.ArcOfCircle(Part.Circle(App.Vector(51, 37.1, 0), App.Vector(0, 0, 1), 1.1), math.radians(30), math.radians(150)),  # 15
    Part.LineSegment(App.Vector(51.9, 37.7, 0), App.Vector(52.9, 37.1, 0)),  # 16
    Part.ArcOfCircle(Part.Circle(App.Vector(52.9, 36.1, 0), App.Vector(0, 0, 1), 1.1), math.radians(-30), math.radians(90)),  # 17
    Part.LineSegment(App.Vector(53.8, 35.5, 0), App.Vector(53.8, 34.5, 0)),  # 18
    Part.ArcOfCircle(Part.Circle(App.Vector(52.9, 33.9, 0), App.Vector(0, 0, 1), 1.1), math.radians(-90), math.radians(30)),  # 19
    Part.LineSegment(App.Vector(52.9, 32.9, 0), App.Vector(51.9, 32.3, 0)),  # 20
    Part.ArcOfCircle(Part.Circle(App.Vector(51, 32.9, 0), App.Vector(0, 0, 1), 1.1), math.radians(-150), math.radians(-30)),  # 21
    Part.LineSegment(App.Vector(50.1, 32.3, 0), App.Vector(49.1, 32.9, 0)),  # 22
    Part.ArcOfCircle(Part.Circle(App.Vector(49.1, 33.9, 0), App.Vector(0, 0, 1), 1.1), math.radians(150), math.radians(270)),  # 23
], False)
sketch4.addConstraint([
    Sketcher.Constraint("Coincident", 0, 2, 1, 2),
    Sketcher.Constraint("Coincident", 1, 1, 2, 1),
    Sketcher.Constraint("Coincident", 2, 2, 3, 2),
    Sketcher.Constraint("Coincident", 3, 1, 4, 1),
    Sketcher.Constraint("Coincident", 4, 2, 5, 2),
    Sketcher.Constraint("Coincident", 5, 1, 6, 1),
    Sketcher.Constraint("Coincident", 6, 2, 7, 2),
    Sketcher.Constraint("Coincident", 7, 1, 8, 1),
    Sketcher.Constraint("Coincident", 8, 2, 9, 2),
    Sketcher.Constraint("Coincident", 9, 1, 10, 1),
    Sketcher.Constraint("Coincident", 10, 2, 11, 2),
    Sketcher.Constraint("Coincident", 11, 1, 0, 1),
    Sketcher.Constraint("Coincident", 12, 2, 13, 2),
    Sketcher.Constraint("Coincident", 13, 1, 14, 1),
    Sketcher.Constraint("Coincident", 14, 2, 15, 2),
    Sketcher.Constraint("Coincident", 15, 1, 16, 1),
    Sketcher.Constraint("Coincident", 16, 2, 17, 2),
    Sketcher.Constraint("Coincident", 17, 1, 18, 1),
    Sketcher.Constraint("Coincident", 18, 2, 19, 2),
    Sketcher.Constraint("Coincident", 19, 1, 20, 1),
    Sketcher.Constraint("Coincident", 20, 2, 21, 2),
    Sketcher.Constraint("Coincident", 21, 1, 22, 1),
    Sketcher.Constraint("Coincident", 22, 2, 23, 2),
    Sketcher.Constraint("Coincident", 23, 1, 12, 1),
    Sketcher.Constraint("Vertical", 0),
    Sketcher.Constraint("Vertical", 6),
    Sketcher.Constraint("Vertical", 12),
    Sketcher.Constraint("Vertical", 18),
    Sketcher.Constraint("Equal", 1, 3),
    Sketcher.Constraint("Equal", 3, 5),
    Sketcher.Constraint("Equal", 5, 7),
    Sketcher.Constraint("Equal", 7, 9),
    Sketcher.Constraint("Equal", 9, 11),
    Sketcher.Constraint("Equal", 11, 13),
    Sketcher.Constraint("Equal", 13, 15),
    Sketcher.Constraint("Equal", 15, 17),
    Sketcher.Constraint("Equal", 17, 19),
    Sketcher.Constraint("Equal", 19, 21),
    Sketcher.Constraint("Equal", 21, 23),
    Sketcher.Constraint("Parallel", 2, 8),
    Sketcher.Constraint("Parallel", 4, 10),
    Sketcher.Constraint("Parallel", 8, 14),
    Sketcher.Constraint("Parallel", 10, 16),
    Sketcher.Constraint("Parallel", 14, 20),
    Sketcher.Constraint("Parallel", 16, 22),
    Sketcher.Constraint("Horizontal", 1, 3, 5, 3),
    Sketcher.Constraint("Horizontal", 7, 3, 11, 3),
    Sketcher.Constraint("Horizontal", 13, 3, 17, 3),
    Sketcher.Constraint("Horizontal", 19, 3, 23, 3),
    Sketcher.Constraint("Horizontal", 2, 2, 3, 1),
    Sketcher.Constraint("Horizontal", 0, 2, 5, 1),
    Sketcher.Constraint("Horizontal", 8, 2, 9, 1),
    Sketcher.Constraint("Horizontal", 6, 2, 11, 1),
    Sketcher.Constraint("Horizontal", 14, 2, 15, 1),
    Sketcher.Constraint("Horizontal", 12, 2, 17, 1),
    Sketcher.Constraint("Horizontal", 20, 2, 21, 1),
    Sketcher.Constraint("Horizontal", 18, 2, 23, 1),
    Sketcher.Constraint("Vertical", 5, 3, 7, 3),
    Sketcher.Constraint("Vertical", 3, 3, 9, 3),
    Sketcher.Constraint("Vertical", 11, 3, 13, 3),
    Sketcher.Constraint("Vertical", 9, 3, 15, 3),
    Sketcher.Constraint("Vertical", 7, 3, 17, 3),
    Sketcher.Constraint("Vertical", 17, 3, 19, 3),
    Sketcher.Constraint("Vertical", 15, 3, 21, 3),
    Sketcher.Constraint("Vertical", 23, 3, 1, 1),
    Sketcher.Constraint("Vertical", 19, 3, 4, 2),
    Sketcher.Constraint("Vertical", 4, 2, 7, 1),
    Sketcher.Constraint("Vertical", 3, 1, 8, 2),
    Sketcher.Constraint("Vertical", 1, 1, 10, 2),
    Sketcher.Constraint("Vertical", 11, 1, 12, 2),
    Sketcher.Constraint("Vertical", 10, 2, 13, 1),
    Sketcher.Constraint("Vertical", 9, 1, 14, 2),
    Sketcher.Constraint("Vertical", 16, 2, 19, 1),
    Sketcher.Constraint("Vertical", 15, 1, 20, 2),
    Sketcher.Constraint("Equal", 6, 12),
    Sketcher.Constraint("Radius", 1, 1.05),
    Sketcher.Constraint("Angle", 2, Q("30.0002 deg")),
    Sketcher.Constraint("DistanceX", -1, 1, 3, 3, 51.0),
    Sketcher.Constraint("DistanceY", 1, 3, 13, 3, 16.0),
    Sketcher.Constraint("DistanceY", 0, 1, 0, 2, 1.087),
    Sketcher.Constraint("DistanceX", -1, 1, 0, 2, 48.24),
    Sketcher.Constraint("DistanceX", 2, 2, 5, 3, 2.76),
    Sketcher.Constraint("Distance", 2, 1.087),
    Sketcher.Constraint("DistanceY", -1, 1, 3, 3, 21.137),
])
pocket2 = doc.addObject("PartDesign::Pocket", "Pocket001")
body.addObject(pocket2)
pocket2.Profile = sketch4
pocket2.Length = 2
pocket2.Reversed = True

# Sketch on XY plane
sketch5 = doc.addObject("Sketcher::SketchObject", "Sketch004")
body.addObject(sketch5)
sketch5.AttachmentSupport = (doc.XY_Plane, [""])
sketch5.MapMode = "FlatFace"
sketch5.AttachmentOffset = App.Placement(App.Vector(0, 0, 2), App.Rotation())
sketch5.addGeometry([
    Part.LineSegment(App.Vector(-51.9, 44, 0), App.Vector(-21.3, 44, 0)),  # 0
    Part.LineSegment(App.Vector(-21.3, 44, 0), App.Vector(-34.8, -5, 0)),  # 1
    Part.LineSegment(App.Vector(-34.8, -5, 0), App.Vector(-51.9, -5, 0)),  # 2
    Part.LineSegment(App.Vector(-51.9, -5, 0), App.Vector(-51.9, 44, 0)),  # 3
    Part.LineSegment(App.Vector(-26, -2, 0), App.Vector(44.3, 21.1, 0)),  # 4
    Part.LineSegment(App.Vector(44.3, 21.1, 0), App.Vector(32.3, -2, 0)),  # 5
    Part.LineSegment(App.Vector(32.3, -2, 0), App.Vector(-26, -2, 0)),  # 6
    Part.LineSegment(App.Vector(-24, 23, 0), App.Vector(40.5, 23, 0)),  # 7
    Part.LineSegment(App.Vector(40.5, 23, 0), App.Vector(-30.3, -0.3, 0)),  # 8
    Part.LineSegment(App.Vector(-30.3, -0.3, 0), App.Vector(-24, 23, 0)),  # 9
    Part.Circle(App.Vector(51, 27, 0), App.Vector(0, 0, 1), 3),  # 10
], False)
sketch5.addConstraint([
    Sketcher.Constraint("Coincident", 0, 2, 1, 1),
    Sketcher.Constraint("Coincident", 1, 2, 2, 1),
    Sketcher.Constraint("Coincident", 2, 2, 3, 1),
    Sketcher.Constraint("Coincident", 3, 2, 0, 1),
    Sketcher.Constraint("Coincident", 4, 2, 5, 1),
    Sketcher.Constraint("Coincident", 5, 2, 6, 1),
    Sketcher.Constraint("Coincident", 6, 2, 4, 1),
    Sketcher.Constraint("Coincident", 7, 2, 8, 1),
    Sketcher.Constraint("Coincident", 8, 2, 9, 1),
    Sketcher.Constraint("Coincident", 9, 2, 7, 1),
    Sketcher.Constraint("Horizontal", 0),
    Sketcher.Constraint("Horizontal", 2),
    Sketcher.Constraint("Vertical", 3),
    Sketcher.Constraint("Horizontal", 6),
    Sketcher.Constraint("Horizontal", 7),
    Sketcher.Constraint("Parallel", 4, 8),
    Sketcher.Constraint("Parallel", 1, 9),
    Sketcher.Constraint("Diameter", 10, 6.0),
    Sketcher.Constraint("DistanceY", 1, 2, -1, 1, 5.0),
    Sketcher.Constraint("DistanceY", 5, 2, -1, 1, 2.0),
    Sketcher.Constraint("DistanceY", 7, 2, 10, 3, 4.0),
    Sketcher.Constraint("DistanceY", 3, 1, 3, 2, 49.0),
    Sketcher.Constraint("DistanceX", -1, 1, 10, 3, 51.0),
    Sketcher.Constraint("DistanceY", -1, 1, 10, 3, 27.0),
    Sketcher.Constraint("Angle", 1, Q("-105.351 deg")),
    Sketcher.Constraint("DistanceX", 0, 1, 0, 2, 30.579),
    Sketcher.Constraint("DistanceX", 6, 2, 6, 1, 58.345),
    Sketcher.Constraint("DistanceX", 1, 2, -1, 1, 34.75),
    Sketcher.Constraint("DistanceX", 5, 2, 4, 2, 12.01),
    Sketcher.Constraint("Distance", 4, 74.049),
    Sketcher.Constraint("DistanceX", 7, 1, 7, 2, 64.4817),
    Sketcher.Constraint("DistanceX", 8, 2, -1, 1, 30.339),
    Sketcher.Constraint("DistanceX", 0, 2, 4, 2, 65.647),
])
pocket3 = doc.addObject("PartDesign::Pocket", "Pocket002")
body.addObject(pocket3)
pocket3.Profile = sketch5
pocket3.Length = 5
pocket3.Reversed = True
doc.recompute()

fillet = doc.addObject("PartDesign::Fillet", "Fillet")
body.addObject(fillet)
fillet.Base = (pocket3, edges_at(pocket3, [
    (44.349, 21.096, 3.5),
    (-23.952, 23, 3.5),
    (-30.339, -0.265, 3.5),
    (-26.006, -2, 3.5),
    (40.529, 23, 3.5),
    (32.339, -2, 3.5),
]))
fillet.Radius = 2

doc.recompute()
